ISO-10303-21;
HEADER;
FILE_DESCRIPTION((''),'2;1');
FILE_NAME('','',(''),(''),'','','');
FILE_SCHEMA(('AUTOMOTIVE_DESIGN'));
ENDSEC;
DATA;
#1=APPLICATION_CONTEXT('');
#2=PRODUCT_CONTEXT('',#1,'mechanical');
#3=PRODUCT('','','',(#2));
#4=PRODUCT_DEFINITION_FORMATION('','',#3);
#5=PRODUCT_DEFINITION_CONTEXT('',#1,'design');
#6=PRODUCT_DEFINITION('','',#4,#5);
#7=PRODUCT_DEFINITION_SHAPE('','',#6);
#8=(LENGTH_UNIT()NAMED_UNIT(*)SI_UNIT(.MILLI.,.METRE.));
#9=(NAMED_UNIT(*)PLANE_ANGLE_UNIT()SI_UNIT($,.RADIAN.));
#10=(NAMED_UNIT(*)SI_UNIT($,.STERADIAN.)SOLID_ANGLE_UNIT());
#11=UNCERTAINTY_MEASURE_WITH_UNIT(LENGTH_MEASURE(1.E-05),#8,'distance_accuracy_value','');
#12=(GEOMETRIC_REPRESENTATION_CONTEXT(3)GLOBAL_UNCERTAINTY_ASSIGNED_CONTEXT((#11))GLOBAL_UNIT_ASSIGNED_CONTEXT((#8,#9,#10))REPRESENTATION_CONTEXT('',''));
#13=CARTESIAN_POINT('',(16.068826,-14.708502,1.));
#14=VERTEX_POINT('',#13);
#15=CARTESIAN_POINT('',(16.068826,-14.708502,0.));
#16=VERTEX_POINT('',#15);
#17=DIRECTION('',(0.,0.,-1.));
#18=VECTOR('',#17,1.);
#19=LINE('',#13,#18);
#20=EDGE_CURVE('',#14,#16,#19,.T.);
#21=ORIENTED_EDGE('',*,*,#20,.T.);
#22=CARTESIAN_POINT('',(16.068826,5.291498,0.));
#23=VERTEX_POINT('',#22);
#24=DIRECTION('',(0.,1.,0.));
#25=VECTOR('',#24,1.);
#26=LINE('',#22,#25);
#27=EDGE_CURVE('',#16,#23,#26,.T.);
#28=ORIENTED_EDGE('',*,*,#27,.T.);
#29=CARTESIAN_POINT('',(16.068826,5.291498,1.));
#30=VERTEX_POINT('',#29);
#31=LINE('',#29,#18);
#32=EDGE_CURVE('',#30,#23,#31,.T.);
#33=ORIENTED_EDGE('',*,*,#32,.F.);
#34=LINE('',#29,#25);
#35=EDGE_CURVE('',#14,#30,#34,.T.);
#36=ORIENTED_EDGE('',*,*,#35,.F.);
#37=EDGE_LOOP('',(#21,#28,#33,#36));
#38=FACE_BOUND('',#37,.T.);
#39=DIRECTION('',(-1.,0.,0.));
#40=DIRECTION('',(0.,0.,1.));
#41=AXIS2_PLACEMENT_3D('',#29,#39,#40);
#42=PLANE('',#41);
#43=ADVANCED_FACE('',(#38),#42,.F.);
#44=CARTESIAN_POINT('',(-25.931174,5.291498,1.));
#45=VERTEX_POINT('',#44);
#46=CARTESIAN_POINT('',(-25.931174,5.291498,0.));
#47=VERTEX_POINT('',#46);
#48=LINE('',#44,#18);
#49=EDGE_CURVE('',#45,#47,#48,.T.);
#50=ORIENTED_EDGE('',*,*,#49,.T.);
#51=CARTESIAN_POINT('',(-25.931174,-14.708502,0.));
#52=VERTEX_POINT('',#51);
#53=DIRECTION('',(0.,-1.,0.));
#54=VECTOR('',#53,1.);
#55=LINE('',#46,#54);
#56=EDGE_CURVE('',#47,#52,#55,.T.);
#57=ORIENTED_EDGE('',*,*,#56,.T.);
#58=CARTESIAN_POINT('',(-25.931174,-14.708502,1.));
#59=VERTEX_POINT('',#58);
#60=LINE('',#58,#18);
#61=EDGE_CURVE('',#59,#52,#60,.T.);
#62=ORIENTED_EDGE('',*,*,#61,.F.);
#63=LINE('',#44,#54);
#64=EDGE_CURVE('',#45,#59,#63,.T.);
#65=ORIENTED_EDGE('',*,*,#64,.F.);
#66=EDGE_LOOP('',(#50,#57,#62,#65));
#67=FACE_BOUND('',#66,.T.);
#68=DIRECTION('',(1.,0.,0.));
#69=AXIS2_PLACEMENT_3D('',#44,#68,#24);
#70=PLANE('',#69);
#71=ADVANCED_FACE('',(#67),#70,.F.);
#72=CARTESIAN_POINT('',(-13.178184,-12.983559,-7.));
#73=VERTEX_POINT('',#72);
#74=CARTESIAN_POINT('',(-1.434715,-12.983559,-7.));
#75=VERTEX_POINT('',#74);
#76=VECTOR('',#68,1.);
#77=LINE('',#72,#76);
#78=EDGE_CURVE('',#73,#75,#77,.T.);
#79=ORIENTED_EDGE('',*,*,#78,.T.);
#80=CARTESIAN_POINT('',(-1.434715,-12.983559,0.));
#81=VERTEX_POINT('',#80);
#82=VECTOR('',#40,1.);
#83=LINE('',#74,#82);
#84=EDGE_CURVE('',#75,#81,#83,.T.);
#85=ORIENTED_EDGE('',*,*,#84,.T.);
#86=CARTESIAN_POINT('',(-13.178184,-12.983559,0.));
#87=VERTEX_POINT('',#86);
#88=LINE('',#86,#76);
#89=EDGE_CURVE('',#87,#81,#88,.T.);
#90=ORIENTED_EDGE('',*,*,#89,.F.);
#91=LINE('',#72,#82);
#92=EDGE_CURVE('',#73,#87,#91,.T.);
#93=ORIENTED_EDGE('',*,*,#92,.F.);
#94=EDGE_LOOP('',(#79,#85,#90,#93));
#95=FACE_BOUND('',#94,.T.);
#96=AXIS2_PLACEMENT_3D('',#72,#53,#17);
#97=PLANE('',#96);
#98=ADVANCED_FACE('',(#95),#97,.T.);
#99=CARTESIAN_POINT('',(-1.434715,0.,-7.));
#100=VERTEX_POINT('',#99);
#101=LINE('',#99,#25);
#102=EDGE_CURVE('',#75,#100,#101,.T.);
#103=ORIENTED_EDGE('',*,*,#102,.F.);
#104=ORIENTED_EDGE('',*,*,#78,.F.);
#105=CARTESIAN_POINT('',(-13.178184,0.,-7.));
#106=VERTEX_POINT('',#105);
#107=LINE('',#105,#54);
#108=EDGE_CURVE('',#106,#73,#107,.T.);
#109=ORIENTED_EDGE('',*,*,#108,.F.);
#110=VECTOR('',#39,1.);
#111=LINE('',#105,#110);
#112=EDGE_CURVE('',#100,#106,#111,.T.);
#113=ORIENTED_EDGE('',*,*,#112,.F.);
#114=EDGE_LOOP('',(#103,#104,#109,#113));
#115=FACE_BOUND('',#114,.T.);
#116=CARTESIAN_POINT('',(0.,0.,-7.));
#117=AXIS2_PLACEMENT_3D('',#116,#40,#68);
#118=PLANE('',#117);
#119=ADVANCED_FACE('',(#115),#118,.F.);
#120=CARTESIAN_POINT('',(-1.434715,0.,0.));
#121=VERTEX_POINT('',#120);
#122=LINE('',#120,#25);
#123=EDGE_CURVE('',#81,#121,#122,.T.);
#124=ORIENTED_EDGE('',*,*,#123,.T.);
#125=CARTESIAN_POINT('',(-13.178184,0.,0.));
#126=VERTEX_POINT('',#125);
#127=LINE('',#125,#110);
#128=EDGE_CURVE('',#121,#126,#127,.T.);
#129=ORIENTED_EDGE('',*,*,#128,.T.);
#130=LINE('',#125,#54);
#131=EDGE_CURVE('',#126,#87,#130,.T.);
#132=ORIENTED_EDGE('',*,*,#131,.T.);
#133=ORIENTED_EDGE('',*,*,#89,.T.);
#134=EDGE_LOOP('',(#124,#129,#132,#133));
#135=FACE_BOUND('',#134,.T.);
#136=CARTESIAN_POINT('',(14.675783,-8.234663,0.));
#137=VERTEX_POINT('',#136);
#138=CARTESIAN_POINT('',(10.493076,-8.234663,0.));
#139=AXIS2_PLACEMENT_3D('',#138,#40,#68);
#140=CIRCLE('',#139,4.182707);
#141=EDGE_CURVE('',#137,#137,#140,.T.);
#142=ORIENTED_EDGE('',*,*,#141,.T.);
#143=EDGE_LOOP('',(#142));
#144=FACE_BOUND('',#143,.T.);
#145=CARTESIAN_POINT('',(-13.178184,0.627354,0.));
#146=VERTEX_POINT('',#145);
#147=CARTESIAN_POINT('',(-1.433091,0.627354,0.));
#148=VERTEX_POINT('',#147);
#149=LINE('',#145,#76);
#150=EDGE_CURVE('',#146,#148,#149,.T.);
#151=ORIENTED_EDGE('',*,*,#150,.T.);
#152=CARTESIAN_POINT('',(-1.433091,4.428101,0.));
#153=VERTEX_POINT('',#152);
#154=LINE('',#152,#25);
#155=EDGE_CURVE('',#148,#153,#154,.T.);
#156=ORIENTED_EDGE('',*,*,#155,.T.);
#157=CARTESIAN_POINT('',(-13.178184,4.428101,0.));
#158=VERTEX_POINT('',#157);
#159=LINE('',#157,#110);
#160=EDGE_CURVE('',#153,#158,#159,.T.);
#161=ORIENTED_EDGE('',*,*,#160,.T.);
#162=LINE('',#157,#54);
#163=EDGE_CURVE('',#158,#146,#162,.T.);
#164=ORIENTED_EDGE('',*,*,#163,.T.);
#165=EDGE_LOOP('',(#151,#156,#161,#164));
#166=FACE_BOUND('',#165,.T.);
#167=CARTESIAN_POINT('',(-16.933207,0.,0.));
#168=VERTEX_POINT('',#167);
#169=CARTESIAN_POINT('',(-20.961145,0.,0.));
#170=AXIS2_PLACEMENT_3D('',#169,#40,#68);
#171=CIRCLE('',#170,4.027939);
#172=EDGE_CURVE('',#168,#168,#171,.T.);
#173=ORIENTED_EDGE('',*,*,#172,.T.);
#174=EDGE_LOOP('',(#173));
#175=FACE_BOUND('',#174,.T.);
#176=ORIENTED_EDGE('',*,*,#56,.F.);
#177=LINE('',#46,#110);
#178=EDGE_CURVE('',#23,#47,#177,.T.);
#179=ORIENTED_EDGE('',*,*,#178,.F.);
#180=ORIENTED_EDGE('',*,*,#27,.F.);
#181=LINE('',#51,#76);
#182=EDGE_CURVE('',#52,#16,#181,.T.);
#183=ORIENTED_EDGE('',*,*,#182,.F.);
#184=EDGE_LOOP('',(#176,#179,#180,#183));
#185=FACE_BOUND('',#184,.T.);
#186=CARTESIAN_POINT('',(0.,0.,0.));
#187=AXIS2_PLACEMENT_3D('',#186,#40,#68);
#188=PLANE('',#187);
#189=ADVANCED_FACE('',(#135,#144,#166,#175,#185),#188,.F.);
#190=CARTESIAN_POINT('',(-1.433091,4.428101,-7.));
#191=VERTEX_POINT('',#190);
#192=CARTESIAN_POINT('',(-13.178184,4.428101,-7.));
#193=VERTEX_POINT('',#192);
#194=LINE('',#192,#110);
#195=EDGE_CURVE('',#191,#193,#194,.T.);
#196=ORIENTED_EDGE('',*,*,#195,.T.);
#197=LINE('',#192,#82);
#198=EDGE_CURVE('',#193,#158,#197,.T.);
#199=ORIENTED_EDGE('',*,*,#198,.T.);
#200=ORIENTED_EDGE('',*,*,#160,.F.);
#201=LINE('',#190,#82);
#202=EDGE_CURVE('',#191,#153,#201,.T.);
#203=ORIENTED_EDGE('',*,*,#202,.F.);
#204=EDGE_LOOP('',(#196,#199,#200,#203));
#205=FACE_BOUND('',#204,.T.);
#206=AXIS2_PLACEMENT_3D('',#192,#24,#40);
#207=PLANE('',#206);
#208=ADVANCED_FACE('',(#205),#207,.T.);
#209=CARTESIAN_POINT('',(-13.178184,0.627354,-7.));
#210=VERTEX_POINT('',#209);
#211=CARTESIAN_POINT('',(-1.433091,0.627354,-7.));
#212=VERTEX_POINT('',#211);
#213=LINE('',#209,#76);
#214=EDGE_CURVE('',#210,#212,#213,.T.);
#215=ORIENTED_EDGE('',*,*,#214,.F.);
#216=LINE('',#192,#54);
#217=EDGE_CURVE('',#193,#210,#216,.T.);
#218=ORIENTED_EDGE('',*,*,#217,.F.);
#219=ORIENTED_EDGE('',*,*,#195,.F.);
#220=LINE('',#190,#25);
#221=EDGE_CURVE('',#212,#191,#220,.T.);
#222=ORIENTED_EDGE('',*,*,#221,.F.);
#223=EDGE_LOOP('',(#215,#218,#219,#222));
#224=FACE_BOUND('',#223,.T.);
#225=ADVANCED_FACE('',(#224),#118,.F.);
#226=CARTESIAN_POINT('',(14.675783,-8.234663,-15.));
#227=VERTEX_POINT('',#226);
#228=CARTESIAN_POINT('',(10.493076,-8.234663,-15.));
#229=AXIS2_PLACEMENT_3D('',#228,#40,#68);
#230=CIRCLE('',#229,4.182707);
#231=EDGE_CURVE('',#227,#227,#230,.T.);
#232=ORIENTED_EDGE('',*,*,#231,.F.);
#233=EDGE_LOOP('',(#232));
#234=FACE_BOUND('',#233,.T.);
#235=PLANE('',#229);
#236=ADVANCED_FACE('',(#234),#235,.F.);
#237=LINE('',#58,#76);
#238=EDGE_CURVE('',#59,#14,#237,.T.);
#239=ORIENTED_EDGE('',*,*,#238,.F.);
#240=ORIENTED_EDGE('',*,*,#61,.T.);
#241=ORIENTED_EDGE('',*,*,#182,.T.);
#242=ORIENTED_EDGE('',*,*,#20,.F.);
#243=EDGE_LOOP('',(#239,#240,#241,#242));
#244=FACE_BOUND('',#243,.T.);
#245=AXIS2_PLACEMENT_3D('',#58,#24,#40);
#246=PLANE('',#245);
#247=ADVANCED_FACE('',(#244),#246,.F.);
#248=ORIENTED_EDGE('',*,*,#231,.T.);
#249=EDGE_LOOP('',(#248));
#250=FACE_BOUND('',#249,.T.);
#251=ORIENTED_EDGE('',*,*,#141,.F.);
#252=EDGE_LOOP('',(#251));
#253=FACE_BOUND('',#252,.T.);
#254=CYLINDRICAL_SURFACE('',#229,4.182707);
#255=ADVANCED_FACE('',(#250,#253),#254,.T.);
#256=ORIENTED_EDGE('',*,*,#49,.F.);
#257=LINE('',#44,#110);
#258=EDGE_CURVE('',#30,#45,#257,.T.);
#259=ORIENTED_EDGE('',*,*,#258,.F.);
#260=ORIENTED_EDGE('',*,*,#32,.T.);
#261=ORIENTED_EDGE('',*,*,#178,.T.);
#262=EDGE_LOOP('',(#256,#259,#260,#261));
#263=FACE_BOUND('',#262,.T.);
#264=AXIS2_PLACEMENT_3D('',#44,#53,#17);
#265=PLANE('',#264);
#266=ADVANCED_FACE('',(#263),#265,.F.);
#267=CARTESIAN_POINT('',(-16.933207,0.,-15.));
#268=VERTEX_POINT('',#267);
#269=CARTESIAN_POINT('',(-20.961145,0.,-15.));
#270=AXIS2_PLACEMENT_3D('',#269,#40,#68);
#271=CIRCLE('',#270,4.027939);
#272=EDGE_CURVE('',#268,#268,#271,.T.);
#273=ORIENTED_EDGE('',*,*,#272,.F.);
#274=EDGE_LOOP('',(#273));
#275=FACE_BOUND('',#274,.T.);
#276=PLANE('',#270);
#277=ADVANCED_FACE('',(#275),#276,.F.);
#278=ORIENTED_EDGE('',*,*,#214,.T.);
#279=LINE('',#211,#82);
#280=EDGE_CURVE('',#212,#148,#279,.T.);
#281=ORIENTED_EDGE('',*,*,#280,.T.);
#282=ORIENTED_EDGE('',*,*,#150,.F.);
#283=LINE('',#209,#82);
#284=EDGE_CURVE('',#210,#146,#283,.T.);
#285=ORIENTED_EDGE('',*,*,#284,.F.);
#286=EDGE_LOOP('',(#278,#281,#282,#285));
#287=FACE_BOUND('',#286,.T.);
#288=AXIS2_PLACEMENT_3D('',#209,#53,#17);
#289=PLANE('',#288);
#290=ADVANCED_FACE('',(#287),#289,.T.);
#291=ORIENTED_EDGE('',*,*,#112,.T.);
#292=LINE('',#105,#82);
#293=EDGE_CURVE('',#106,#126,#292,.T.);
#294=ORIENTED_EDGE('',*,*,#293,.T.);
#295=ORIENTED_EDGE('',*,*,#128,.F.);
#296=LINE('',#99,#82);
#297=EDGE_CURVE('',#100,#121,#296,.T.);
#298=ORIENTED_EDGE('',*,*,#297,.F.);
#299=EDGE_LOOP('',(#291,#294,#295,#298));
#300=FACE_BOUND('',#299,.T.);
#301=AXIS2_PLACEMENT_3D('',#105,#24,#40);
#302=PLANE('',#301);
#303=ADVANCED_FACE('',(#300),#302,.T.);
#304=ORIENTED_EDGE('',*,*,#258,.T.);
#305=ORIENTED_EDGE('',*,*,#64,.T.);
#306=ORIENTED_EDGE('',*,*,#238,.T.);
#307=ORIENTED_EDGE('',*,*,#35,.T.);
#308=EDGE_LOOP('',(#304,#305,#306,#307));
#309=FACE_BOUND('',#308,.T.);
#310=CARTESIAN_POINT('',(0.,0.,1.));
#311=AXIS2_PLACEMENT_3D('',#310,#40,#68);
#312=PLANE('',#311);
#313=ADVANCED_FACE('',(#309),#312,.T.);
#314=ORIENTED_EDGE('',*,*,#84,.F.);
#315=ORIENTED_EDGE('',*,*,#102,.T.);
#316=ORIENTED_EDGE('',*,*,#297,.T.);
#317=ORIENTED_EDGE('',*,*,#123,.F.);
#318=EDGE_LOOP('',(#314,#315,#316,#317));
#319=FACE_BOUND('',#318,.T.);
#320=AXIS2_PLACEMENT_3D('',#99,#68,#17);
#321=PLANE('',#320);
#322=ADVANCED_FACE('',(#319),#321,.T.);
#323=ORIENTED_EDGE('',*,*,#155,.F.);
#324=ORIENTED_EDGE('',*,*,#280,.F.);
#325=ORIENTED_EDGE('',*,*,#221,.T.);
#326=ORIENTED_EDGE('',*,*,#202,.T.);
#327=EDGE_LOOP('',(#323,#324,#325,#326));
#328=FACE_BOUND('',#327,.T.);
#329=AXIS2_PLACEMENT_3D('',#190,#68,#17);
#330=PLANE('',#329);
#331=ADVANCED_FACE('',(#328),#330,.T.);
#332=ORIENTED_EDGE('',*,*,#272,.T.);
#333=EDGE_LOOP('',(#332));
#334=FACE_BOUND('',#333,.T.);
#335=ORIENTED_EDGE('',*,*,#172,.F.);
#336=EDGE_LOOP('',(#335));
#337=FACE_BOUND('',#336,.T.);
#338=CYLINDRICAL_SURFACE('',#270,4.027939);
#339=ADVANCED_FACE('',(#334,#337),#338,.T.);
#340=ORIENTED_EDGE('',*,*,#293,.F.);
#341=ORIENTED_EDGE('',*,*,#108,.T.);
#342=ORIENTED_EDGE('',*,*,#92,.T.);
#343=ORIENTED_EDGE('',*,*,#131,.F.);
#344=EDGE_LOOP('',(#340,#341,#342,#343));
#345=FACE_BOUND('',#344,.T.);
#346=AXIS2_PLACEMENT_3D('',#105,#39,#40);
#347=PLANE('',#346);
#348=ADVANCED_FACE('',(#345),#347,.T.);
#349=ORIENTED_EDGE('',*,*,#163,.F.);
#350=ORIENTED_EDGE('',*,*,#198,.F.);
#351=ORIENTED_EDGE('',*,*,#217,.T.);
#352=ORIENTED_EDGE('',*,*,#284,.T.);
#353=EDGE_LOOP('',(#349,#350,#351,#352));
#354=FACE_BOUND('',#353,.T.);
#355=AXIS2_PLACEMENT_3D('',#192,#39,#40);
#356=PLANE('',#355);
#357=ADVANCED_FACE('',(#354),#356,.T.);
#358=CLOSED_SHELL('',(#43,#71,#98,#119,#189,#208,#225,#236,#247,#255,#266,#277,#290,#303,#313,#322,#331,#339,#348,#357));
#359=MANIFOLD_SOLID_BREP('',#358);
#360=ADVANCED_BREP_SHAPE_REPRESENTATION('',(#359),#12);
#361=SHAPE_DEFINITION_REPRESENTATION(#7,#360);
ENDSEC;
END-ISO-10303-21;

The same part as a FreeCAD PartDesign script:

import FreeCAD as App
import Part
import Sketcher

V = App.Vector

doc = App.newDocument("Part")
body = doc.addObject("PartDesign::Body", "Body")

# Sketch on XY plane
sketch1 = doc.addObject("Sketcher::SketchObject", "Sketch")
body.addObject(sketch1)
sketch1.AttachmentSupport = (doc.XY_Plane, [""])
sketch1.MapMode = "FlatFace"
sketch1.addGeometry(Part.LineSegment(V(-26, 5, 0), V(-26, -15, 0)), False)
sketch1.addGeometry(Part.LineSegment(V(-26, -15, 0), V(16, -15, 0)), False)
sketch1.addGeometry(Part.LineSegment(V(16, -15, 0), V(16, 5, 0)), False)
sketch1.addGeometry(Part.LineSegment(V(16, 5, 0), V(-26, 5, 0)), False)
sketch1.addConstraint(Sketcher.Constraint("Coincident", 0, 2, 1, 1))
sketch1.addConstraint(Sketcher.Constraint("Coincident", 1, 2, 2, 1))
sketch1.addConstraint(Sketcher.Constraint("Coincident", 2, 2, 3, 1))
sketch1.addConstraint(Sketcher.Constraint("Coincident", 3, 2, 0, 1))
sketch1.addConstraint(Sketcher.Constraint("Vertical", 0))
sketch1.addConstraint(Sketcher.Constraint("Horizontal", 1))
sketch1.addConstraint(Sketcher.Constraint("Vertical", 2))
sketch1.addConstraint(Sketcher.Constraint("Horizontal", 3))
sketch1.addConstraint(Sketcher.Constraint("DistanceX", 1, 1, 1, 2, 42.0))
sketch1.addConstraint(Sketcher.Constraint("DistanceY", 0, 2, 0, 1, 20.0))
sketch1.addConstraint(Sketcher.Constraint("DistanceX", 0, 2, -1, 1, 25.931174))
sketch1.addConstraint(Sketcher.Constraint("DistanceY", 0, 2, -1, 1, 14.708502))
pad1 = doc.addObject("PartDesign::Pad", "Pad")
body.addObject(pad1)
pad1.Profile = sketch1
pad1.Length = 1

# Sketch on XY plane
sketch2 = doc.addObject("Sketcher::SketchObject", "Sketch001")
body.addObject(sketch2)
sketch2.AttachmentSupport = (doc.XY_Plane, [""])
sketch2.MapMode = "FlatFace"
sketch2.addGeometry(Part.Circle(V(-21, 0, 0), V(0, 0, 1), 4), False)
sketch2.addGeometry(Part.Circle(V(10.5, -8.2, 0), V(0, 0, 1), 4.2), False)
sketch2.addConstraint(Sketcher.Constraint("PointOnObject", 0, 3, -1))
sketch2.addConstraint(Sketcher.Constraint("Diameter", 0, 8.055877))
sketch2.addConstraint(Sketcher.Constraint("Diameter", 1, 8.365413))
sketch2.addConstraint(Sketcher.Constraint("DistanceX", 0, 3, 1, 3, 31.454221))
sketch2.addConstraint(Sketcher.Constraint("DistanceX", 0, 3, -1, 1, 20.961145))
sketch2.addConstraint(Sketcher.Constraint("DistanceY", 1, 3, -1, 1, 8.234663))
pad2 = doc.addObject("PartDesign::Pad", "Pad001")
body.addObject(pad2)
pad2.Profile = sketch2
pad2.Length = 15
pad2.Reversed = True

# Sketch on XY plane
sketch3 = doc.addObject("Sketcher::SketchObject", "Sketch002")
body.addObject(sketch3)
sketch3.AttachmentSupport = (doc.XY_Plane, [""])
sketch3.MapMode = "FlatFace"
sketch3.addGeometry(Part.LineSegment(V(-13.2, 4.4, 0), V(-13.2, 0.6, 0)), False)
sketch3.addGeometry(Part.LineSegment(V(-13.2, 0.6, 0), V(-1.4, 0.6, 0)), False)
sketch3.addGeometry(Part.LineSegment(V(-1.4, 0.6, 0), V(-1.4, 4.4, 0)), False)
sketch3.addGeometry(Part.LineSegment(V(-1.4, 4.4, 0), V(-13.2, 4.4, 0)), False)
sketch3.addGeometry(Part.LineSegment(V(-13.2, 0, 0), V(-13.2, -13, 0)), False)
sketch3.addGeometry(Part.LineSegment(V(-13.2, -13, 0), V(-1.4, -13, 0)), False)
sketch3.addGeometry(Part.LineSegment(V(-1.4, -13, 0), V(-1.4, 0, 0)), False)
sketch3.addGeometry(Part.LineSegment(V(-1.4, 0, 0), V(-13.2, 0, 0)), False)
sketch3.addConstraint(Sketcher.Constraint("Coincident", 0, 2, 1, 1))
sketch3.addConstraint(Sketcher.Constraint("Coincident", 1, 2, 2, 1))
sketch3.addConstraint(Sketcher.Constraint("Coincident", 2, 2, 3, 1))
sketch3.addConstraint(Sketcher.Constraint("Coincident", 3, 2, 0, 1))
sketch3.addConstraint(Sketcher.Constraint("Coincident", 4, 2, 5, 1))
sketch3.addConstraint(Sketcher.Constraint("Coincident", 5, 2, 6, 1))
sketch3.addConstraint(Sketcher.Constraint("Coincident", 6, 2, 7, 1))
sketch3.addConstraint(Sketcher.Constraint("Coincident", 7, 2, 4, 1))
sketch3.addConstraint(Sketcher.Constraint("Vertical", 0))
sketch3.addConstraint(Sketcher.Constraint("Horizontal", 1))
sketch3.addConstraint(Sketcher.Constraint("Vertical", 2))
sketch3.addConstraint(Sketcher.Constraint("Horizontal", 3))
sketch3.addConstraint(Sketcher.Constraint("Vertical", 4))
sketch3.addConstraint(Sketcher.Constraint("Horizontal", 5))
sketch3.addConstraint(Sketcher.Constraint("Vertical", 6))
sketch3.addConstraint(Sketcher.Constraint("Horizontal", 7))
sketch3.addConstraint(Sketcher.Constraint("PointOnObject", 6, 2, -1))
sketch3.addConstraint(Sketcher.Constraint("Vertical", 3, 2, 4, 2))
sketch3.addConstraint(Sketcher.Constraint("DistanceX", 5, 1, 5, 2, 11.743469))
sketch3.addConstraint(Sketcher.Constraint("DistanceY", 4, 2, 4, 1, 12.983559))
sketch3.addConstraint(Sketcher.Constraint("DistanceY", -1, 1, 2, 2, 4.428101))
sketch3.addConstraint(Sketcher.Constraint("DistanceX", 1, 1, 1, 2, 11.745093))
sketch3.addConstraint(Sketcher.Constraint("DistanceY", 0, 2, 0, 1, 3.800747))
sketch3.addConstraint(Sketcher.Constraint("DistanceX", 1, 2, -1, 1, 1.433091))
pad3 = doc.addObject("PartDesign::Pad", "Pad002")
body.addObject(pad3)
pad3.Profile = sketch3
pad3.Length = 7
pad3.Reversed = True

doc.recompute()
